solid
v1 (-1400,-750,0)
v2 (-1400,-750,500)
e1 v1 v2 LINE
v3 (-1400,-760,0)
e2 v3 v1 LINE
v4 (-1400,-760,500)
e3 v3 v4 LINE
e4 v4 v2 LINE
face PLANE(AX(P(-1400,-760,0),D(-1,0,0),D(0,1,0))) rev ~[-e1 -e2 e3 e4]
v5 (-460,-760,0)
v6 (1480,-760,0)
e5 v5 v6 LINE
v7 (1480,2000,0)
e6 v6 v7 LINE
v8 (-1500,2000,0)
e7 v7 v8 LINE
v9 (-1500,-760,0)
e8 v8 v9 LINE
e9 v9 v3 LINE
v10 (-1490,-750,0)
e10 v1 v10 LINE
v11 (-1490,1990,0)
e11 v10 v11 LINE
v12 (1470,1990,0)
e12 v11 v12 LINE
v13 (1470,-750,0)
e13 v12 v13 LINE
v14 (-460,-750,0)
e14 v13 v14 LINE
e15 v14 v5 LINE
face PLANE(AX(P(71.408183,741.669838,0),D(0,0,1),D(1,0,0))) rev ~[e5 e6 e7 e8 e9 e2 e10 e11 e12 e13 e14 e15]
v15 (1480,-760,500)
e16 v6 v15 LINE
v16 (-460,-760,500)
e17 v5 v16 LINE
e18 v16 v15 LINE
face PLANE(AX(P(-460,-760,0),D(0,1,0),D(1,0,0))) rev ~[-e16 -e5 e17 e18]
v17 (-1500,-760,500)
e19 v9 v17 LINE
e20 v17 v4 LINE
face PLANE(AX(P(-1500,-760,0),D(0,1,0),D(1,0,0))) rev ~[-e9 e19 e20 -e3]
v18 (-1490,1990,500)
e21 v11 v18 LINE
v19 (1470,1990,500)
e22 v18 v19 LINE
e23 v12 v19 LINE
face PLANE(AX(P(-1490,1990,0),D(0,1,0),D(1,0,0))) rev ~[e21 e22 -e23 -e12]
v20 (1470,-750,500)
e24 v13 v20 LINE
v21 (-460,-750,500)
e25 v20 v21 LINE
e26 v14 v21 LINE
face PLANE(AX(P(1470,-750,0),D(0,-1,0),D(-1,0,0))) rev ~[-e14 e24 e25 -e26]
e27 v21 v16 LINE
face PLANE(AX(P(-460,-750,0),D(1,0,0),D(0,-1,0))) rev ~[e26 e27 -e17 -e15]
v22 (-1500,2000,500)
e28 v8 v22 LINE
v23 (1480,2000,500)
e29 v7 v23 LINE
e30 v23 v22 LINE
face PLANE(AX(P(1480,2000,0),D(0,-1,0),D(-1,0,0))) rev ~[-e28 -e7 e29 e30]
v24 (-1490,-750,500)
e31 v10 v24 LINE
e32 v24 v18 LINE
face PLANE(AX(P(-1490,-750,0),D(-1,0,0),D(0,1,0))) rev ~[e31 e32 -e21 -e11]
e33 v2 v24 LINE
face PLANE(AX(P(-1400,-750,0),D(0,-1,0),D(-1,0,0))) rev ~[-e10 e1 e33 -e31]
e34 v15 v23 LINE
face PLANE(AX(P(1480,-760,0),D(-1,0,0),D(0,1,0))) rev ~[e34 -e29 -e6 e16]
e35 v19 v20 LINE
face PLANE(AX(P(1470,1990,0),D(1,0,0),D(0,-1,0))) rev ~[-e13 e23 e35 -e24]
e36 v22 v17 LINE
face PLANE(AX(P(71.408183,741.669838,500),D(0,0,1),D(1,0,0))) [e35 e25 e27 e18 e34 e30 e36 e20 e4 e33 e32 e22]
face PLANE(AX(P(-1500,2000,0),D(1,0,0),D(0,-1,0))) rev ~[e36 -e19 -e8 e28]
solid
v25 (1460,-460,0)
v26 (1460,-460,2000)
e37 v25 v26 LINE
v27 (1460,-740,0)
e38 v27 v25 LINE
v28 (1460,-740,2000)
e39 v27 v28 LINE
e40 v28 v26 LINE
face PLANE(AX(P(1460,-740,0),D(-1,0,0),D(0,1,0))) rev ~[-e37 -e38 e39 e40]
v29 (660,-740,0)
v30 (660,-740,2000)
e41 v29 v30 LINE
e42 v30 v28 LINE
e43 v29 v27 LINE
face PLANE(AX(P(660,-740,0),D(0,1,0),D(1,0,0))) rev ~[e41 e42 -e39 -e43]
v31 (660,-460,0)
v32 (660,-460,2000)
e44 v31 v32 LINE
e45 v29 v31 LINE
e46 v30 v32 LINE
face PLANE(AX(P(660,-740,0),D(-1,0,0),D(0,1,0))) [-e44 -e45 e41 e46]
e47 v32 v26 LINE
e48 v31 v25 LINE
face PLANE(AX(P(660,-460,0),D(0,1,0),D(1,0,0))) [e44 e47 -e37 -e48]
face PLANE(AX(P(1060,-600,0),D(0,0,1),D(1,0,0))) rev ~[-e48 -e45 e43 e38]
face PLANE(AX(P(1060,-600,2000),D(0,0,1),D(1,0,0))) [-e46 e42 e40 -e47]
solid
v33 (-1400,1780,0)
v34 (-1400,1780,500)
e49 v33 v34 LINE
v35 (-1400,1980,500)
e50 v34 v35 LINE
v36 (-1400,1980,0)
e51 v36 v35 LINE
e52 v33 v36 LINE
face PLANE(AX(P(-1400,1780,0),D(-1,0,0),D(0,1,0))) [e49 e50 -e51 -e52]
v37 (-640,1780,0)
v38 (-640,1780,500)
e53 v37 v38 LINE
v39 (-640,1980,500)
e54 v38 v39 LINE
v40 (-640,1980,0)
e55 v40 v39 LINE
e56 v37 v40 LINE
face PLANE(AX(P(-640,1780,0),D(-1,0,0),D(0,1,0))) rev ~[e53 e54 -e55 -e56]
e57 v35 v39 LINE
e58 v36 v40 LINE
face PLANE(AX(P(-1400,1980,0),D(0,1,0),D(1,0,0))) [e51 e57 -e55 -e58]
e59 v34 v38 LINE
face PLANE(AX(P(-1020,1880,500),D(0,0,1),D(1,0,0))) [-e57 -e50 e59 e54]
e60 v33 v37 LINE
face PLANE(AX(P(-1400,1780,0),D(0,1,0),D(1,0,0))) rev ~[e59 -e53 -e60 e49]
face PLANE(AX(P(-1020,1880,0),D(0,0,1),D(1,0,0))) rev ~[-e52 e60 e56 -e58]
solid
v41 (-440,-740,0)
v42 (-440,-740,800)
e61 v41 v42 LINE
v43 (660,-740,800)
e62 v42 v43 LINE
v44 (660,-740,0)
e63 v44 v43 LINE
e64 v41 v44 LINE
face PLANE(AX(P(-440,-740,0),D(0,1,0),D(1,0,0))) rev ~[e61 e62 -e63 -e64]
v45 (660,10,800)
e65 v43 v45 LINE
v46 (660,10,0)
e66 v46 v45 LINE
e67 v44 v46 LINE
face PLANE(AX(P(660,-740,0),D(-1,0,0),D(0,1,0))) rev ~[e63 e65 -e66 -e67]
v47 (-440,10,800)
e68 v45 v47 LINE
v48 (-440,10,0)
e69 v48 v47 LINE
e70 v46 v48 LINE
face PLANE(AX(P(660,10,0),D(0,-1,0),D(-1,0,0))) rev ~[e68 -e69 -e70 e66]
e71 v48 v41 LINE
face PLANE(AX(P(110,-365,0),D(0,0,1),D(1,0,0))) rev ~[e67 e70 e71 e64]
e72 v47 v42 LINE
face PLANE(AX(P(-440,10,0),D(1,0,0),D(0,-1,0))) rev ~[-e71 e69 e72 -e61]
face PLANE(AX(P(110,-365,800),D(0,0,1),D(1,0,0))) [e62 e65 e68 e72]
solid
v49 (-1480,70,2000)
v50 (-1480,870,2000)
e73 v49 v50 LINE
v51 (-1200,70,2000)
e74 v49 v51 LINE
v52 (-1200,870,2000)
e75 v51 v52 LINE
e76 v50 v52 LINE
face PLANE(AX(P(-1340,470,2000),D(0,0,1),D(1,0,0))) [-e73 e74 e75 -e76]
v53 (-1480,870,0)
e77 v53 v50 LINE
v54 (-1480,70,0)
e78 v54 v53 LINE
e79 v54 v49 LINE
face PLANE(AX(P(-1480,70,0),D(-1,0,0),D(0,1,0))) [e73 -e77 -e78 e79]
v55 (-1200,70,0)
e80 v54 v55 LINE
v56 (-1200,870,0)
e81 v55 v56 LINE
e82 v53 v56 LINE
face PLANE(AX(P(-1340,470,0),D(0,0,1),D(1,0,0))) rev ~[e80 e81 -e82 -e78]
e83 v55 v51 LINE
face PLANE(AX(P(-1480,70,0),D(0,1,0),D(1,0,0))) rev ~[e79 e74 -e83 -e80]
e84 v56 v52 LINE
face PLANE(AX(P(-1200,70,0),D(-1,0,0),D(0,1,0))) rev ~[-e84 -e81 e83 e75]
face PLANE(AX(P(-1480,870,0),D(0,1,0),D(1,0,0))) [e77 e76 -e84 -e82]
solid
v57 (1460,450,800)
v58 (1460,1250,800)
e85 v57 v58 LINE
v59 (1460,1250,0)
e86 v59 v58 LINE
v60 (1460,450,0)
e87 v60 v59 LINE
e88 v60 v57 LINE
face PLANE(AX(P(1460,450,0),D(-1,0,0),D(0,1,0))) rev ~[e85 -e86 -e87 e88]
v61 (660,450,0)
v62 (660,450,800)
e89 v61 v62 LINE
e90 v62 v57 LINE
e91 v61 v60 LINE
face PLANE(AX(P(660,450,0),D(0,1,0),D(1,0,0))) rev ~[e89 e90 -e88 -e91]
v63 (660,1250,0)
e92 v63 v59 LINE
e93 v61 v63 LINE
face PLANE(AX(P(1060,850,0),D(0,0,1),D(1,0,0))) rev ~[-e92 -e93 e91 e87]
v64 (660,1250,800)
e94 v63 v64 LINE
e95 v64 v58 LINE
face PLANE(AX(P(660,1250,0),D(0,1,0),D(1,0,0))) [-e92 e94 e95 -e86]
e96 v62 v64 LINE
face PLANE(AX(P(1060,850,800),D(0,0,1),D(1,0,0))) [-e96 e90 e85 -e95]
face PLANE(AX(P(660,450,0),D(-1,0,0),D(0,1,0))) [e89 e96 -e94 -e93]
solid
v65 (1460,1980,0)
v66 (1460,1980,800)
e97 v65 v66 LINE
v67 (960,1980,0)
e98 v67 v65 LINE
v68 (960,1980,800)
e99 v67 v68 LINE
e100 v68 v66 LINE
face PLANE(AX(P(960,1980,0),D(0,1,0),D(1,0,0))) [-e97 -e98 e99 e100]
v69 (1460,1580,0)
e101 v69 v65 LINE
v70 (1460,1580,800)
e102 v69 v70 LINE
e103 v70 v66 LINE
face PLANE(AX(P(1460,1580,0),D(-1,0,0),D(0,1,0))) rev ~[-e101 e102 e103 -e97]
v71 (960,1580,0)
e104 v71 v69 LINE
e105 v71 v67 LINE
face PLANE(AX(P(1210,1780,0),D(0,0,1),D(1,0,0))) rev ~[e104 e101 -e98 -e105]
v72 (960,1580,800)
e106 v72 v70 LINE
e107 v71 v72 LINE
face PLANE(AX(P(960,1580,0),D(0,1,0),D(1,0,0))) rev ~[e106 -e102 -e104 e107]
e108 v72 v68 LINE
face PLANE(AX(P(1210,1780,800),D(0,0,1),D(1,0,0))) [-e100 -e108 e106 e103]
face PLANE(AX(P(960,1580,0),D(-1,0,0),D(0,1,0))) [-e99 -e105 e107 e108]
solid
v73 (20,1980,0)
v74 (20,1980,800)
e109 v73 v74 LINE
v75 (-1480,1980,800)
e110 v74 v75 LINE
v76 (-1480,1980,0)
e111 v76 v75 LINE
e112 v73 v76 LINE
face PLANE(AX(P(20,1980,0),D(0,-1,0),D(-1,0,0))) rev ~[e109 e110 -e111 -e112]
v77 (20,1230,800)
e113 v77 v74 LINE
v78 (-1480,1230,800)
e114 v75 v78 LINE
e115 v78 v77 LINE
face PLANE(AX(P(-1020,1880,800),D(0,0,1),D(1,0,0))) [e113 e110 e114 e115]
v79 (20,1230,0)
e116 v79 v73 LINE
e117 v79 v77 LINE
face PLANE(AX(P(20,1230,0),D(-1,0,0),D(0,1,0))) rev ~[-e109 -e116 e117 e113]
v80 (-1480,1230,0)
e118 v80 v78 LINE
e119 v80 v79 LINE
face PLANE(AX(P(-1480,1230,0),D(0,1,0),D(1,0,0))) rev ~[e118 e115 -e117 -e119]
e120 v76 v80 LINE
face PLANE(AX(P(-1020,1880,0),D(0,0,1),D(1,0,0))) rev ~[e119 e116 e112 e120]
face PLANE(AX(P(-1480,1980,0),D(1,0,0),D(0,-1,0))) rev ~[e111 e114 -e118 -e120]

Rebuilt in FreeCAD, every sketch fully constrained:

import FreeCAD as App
import Part
import Sketcher
Q = App.Units.Quantity

doc = App.newDocument("Part")
body = doc.addObject("PartDesign::Body", "Body")

sketch1 = doc.addObject("Sketcher::SketchObject", "Sketch")
body.addObject(sketch1)
sketch1.AttachmentSupport = (doc.XY_Plane, [""])
sketch1.MapMode = "FlatFace"
sketch1.addGeometry(Part.LineSegment(App.Vector(-1490, -750, 0), App.Vector(-1490, 1990, 0)), False)
sketch1.addGeometry(Part.LineSegment(App.Vector(-1490, 1990, 0), App.Vector(1470, 1990, 0)), False)
sketch1.addGeometry(Part.LineSegment(App.Vector(1470, 1990, 0), App.Vector(1470, -750, 0)), False)
sketch1.addGeometry(Part.LineSegment(App.Vector(1470, -750, 0), App.Vector(-460, -750, 0)), False)
sketch1.addGeometry(Part.LineSegment(App.Vector(-460, -750, 0), App.Vector(-460, -760, 0)), False)
sketch1.addGeometry(Part.LineSegment(App.Vector(-460, -760, 0), App.Vector(1480, -760, 0)), False)
sketch1.addGeometry(Part.LineSegment(App.Vector(1480, -760, 0), App.Vector(1480, 2000, 0)), False)
sketch1.addGeometry(Part.LineSegment(App.Vector(1480, 2000, 0), App.Vector(-1500, 2000, 0)), False)
sketch1.addGeometry(Part.LineSegment(App.Vector(-1500, 2000, 0), App.Vector(-1500, -760, 0)), False)
sketch1.addGeometry(Part.LineSegment(App.Vector(-1500, -760, 0), App.Vector(-1400, -760, 0)), False)
sketch1.addGeometry(Part.LineSegment(App.Vector(-1400, -760, 0), App.Vector(-1400, -750, 0)), False)
sketch1.addGeometry(Part.LineSegment(App.Vector(-1400, -750, 0), App.Vector(-1490, -750, 0)), False)
sketch1.addConstraint(Sketcher.Constraint("Coincident", 0, 2, 1, 1))
sketch1.addConstraint(Sketcher.Constraint("Coincident", 1, 2, 2, 1))
sketch1.addConstraint(Sketcher.Constraint("Coincident", 2, 2, 3, 1))
sketch1.addConstraint(Sketcher.Constraint("Coincident", 3, 2, 4, 1))
sketch1.addConstraint(Sketcher.Constraint("Coincident", 4, 2, 5, 1))
sketch1.addConstraint(Sketcher.Constraint("Coincident", 5, 2, 6, 1))
sketch1.addConstraint(Sketcher.Constraint("Coincident", 6, 2, 7, 1))
sketch1.addConstraint(Sketcher.Constraint("Coincident", 7, 2, 8, 1))
sketch1.addConstraint(Sketcher.Constraint("Coincident", 8, 2, 9, 1))
sketch1.addConstraint(Sketcher.Constraint("Coincident", 9, 2, 10, 1))
sketch1.addConstraint(Sketcher.Constraint("Coincident", 10, 2, 11, 1))
sketch1.addConstraint(Sketcher.Constraint("Coincident", 11, 2, 0, 1))
sketch1.addConstraint(Sketcher.Constraint("Vertical", 0))
sketch1.addConstraint(Sketcher.Constraint("Horizontal", 1))
sketch1.addConstraint(Sketcher.Constraint("Vertical", 2))
sketch1.addConstraint(Sketcher.Constraint("Horizontal", 3))
sketch1.addConstraint(Sketcher.Constraint("Vertical", 4))
sketch1.addConstraint(Sketcher.Constraint("Horizontal", 5))
sketch1.addConstraint(Sketcher.Constraint("Vertical", 6))
sketch1.addConstraint(Sketcher.Constraint("Horizontal", 7))
sketch1.addConstraint(Sketcher.Constraint("Vertical", 8))
sketch1.addConstraint(Sketcher.Constraint("Horizontal", 9))
sketch1.addConstraint(Sketcher.Constraint("Vertical", 10))
sketch1.addConstraint(Sketcher.Constraint("Horizontal", 11))
sketch1.addConstraint(Sketcher.Constraint("Horizontal", 5, 2, 8, 2))
sketch1.addConstraint(Sketcher.Constraint("Horizontal", 3, 2, 10, 2))
sketch1.addConstraint(Sketcher.Constraint("DistanceX", 1, 1, 1, 2, Q("2960 mm")))
sketch1.addConstraint(Sketcher.Constraint("DistanceX", 3, 2, 3, 1, Q("1930 mm")))
sketch1.addConstraint(Sketcher.Constraint("DistanceX", 5, 1, 5, 2, Q("1940 mm")))
sketch1.addConstraint(Sketcher.Constraint("DistanceX", 7, 2, 7, 1, Q("2980 mm")))
sketch1.addConstraint(Sketcher.Constraint("DistanceX", 9, 1, 9, 2, Q("100 mm")))
sketch1.addConstraint(Sketcher.Constraint("DistanceY", 0, 1, 0, 2, Q("2740 mm")))
sketch1.addConstraint(Sketcher.Constraint("DistanceY", 4, 2, 4, 1, Q("10 mm")))
sketch1.addConstraint(Sketcher.Constraint("DistanceY", 6, 1, 6, 2, Q("2760 mm")))
sketch1.addConstraint(Sketcher.Constraint("DistanceX", 0, 2, -1, 1, Q("1490 mm")))
sketch1.addConstraint(Sketcher.Constraint("DistanceY", -1, 1, 0, 2, Q("1990 mm")))
pad1 = doc.addObject("PartDesign::Pad", "Pad")
body.addObject(pad1)
pad1.Profile = sketch1
pad1.Length = 500
body2 = doc.addObject("PartDesign::Body", "Body001")

sketch2 = doc.addObject("Sketcher::SketchObject", "Sketch001")
body2.addObject(sketch2)
sketch2.AttachmentSupport = (doc.getObject("XY_Plane001"), [""])
sketch2.MapMode = "FlatFace"
sketch2.addGeometry(Part.LineSegment(App.Vector(-1480, 870, 0), App.Vector(-1480, 70, 0)), False)
sketch2.addGeometry(Part.LineSegment(App.Vector(-1480, 70, 0), App.Vector(-1200, 70, 0)), False)
sketch2.addGeometry(Part.LineSegment(App.Vector(-1200, 70, 0), App.Vector(-1200, 870, 0)), False)
sketch2.addGeometry(Part.LineSegment(App.Vector(-1200, 870, 0), App.Vector(-1480, 870, 0)), False)
sketch2.addConstraint(Sketcher.Constraint("Coincident", 0, 2, 1, 1))
sketch2.addConstraint(Sketcher.Constraint("Coincident", 1, 2, 2, 1))
sketch2.addConstraint(Sketcher.Constraint("Coincident", 2, 2, 3, 1))
sketch2.addConstraint(Sketcher.Constraint("Coincident", 3, 2, 0, 1))
sketch2.addConstraint(Sketcher.Constraint("Vertical", 0))
sketch2.addConstraint(Sketcher.Constraint("Horizontal", 1))
sketch2.addConstraint(Sketcher.Constraint("Vertical", 2))
sketch2.addConstraint(Sketcher.Constraint("Horizontal", 3))
sketch2.addConstraint(Sketcher.Constraint("DistanceX", 1, 1, 1, 2, Q("280 mm")))
sketch2.addConstraint(Sketcher.Constraint("DistanceY", 0, 2, 0, 1, Q("800 mm")))
sketch2.addConstraint(Sketcher.Constraint("DistanceX", 0, 2, -1, 1, Q("1480 mm")))
sketch2.addConstraint(Sketcher.Constraint("DistanceY", -1, 1, 0, 2, Q("70 mm")))
pad2 = doc.addObject("PartDesign::Pad", "Pad001")
body2.addObject(pad2)
pad2.Profile = sketch2
pad2.Length = 2000
body3 = doc.addObject("PartDesign::Body", "Body002")

sketch3 = doc.addObject("Sketcher::SketchObject", "Sketch002")
body3.addObject(sketch3)
sketch3.AttachmentSupport = (doc.getObject("XY_Plane002"), [""])
sketch3.MapMode = "FlatFace"
sketch3.addGeometry(Part.LineSegment(App.Vector(-1400, 1980, 0), App.Vector(-1400, 1780, 0)), False)
sketch3.addGeometry(Part.LineSegment(App.Vector(-1400, 1780, 0), App.Vector(-640, 1780, 0)), False)
sketch3.addGeometry(Part.LineSegment(App.Vector(-640, 1780, 0), App.Vector(-640, 1980, 0)), False)
sketch3.addGeometry(Part.LineSegment(App.Vector(-640, 1980, 0), App.Vector(-1400, 1980, 0)), False)
sketch3.addConstraint(Sketcher.Constraint("Coincident", 0, 2, 1, 1))
sketch3.addConstraint(Sketcher.Constraint("Coincident", 1, 2, 2, 1))
sketch3.addConstraint(Sketcher.Constraint("Coincident", 2, 2, 3, 1))
sketch3.addConstraint(Sketcher.Constraint("Coincident", 3, 2, 0, 1))
sketch3.addConstraint(Sketcher.Constraint("Vertical", 0))
sketch3.addConstraint(Sketcher.Constraint("Horizontal", 1))
sketch3.addConstraint(Sketcher.Constraint("Vertical", 2))
sketch3.addConstraint(Sketcher.Constraint("Horizontal", 3))
sketch3.addConstraint(Sketcher.Constraint("DistanceX", 1, 1, 1, 2, Q("760 mm")))
sketch3.addConstraint(Sketcher.Constraint("DistanceY", 0, 2, 0, 1, Q("200 mm")))
sketch3.addConstraint(Sketcher.Constraint("DistanceX", 0, 2, -1, 1, Q("1400 mm")))
sketch3.addConstraint(Sketcher.Constraint("DistanceY", -1, 1, 0, 2, Q("1780 mm")))
pad3 = doc.addObject("PartDesign::Pad", "Pad002")
body3.addObject(pad3)
pad3.Profile = sketch3
pad3.Length = 500
body4 = doc.addObject("PartDesign::Body", "Body003")

sketch4 = doc.addObject("Sketcher::SketchObject", "Sketch003")
body4.addObject(sketch4)
sketch4.AttachmentSupport = (doc.getObject("XY_Plane003"), [""])
sketch4.MapMode = "FlatFace"
sketch4.addGeometry(Part.LineSegment(App.Vector(-1480, 1980, 0), App.Vector(-1480, 1230, 0)), False)
sketch4.addGeometry(Part.LineSegment(App.Vector(-1480, 1230, 0), App.Vector(20, 1230, 0)), False)
sketch4.addGeometry(Part.LineSegment(App.Vector(20, 1230, 0), App.Vector(20, 1980, 0)), False)
sketch4.addGeometry(Part.LineSegment(App.Vector(20, 1980, 0), App.Vector(-1480, 1980, 0)), False)
sketch4.addConstraint(Sketcher.Constraint("Coincident", 0, 2, 1, 1))
sketch4.addConstraint(Sketcher.Constraint("Coincident", 1, 2, 2, 1))
sketch4.addConstraint(Sketcher.Constraint("Coincident", 2, 2, 3, 1))
sketch4.addConstraint(Sketcher.Constraint("Coincident", 3, 2, 0, 1))
sketch4.addConstraint(Sketcher.Constraint("Vertical", 0))
sketch4.addConstraint(Sketcher.Constraint("Horizontal", 1))
sketch4.addConstraint(Sketcher.Constraint("Vertical", 2))
sketch4.addConstraint(Sketcher.Constraint("Horizontal", 3))
sketch4.addConstraint(Sketcher.Constraint("DistanceX", 1, 1, 1, 2, Q("1500 mm")))
sketch4.addConstraint(Sketcher.Constraint("DistanceY", 0, 2, 0, 1, Q("750 mm")))
sketch4.addConstraint(Sketcher.Constraint("DistanceX", 0, 2, -1, 1, Q("1480 mm")))
sketch4.addConstraint(Sketcher.Constraint("DistanceY", -1, 1, 0, 2, Q("1230 mm")))
pad4 = doc.addObject("PartDesign::Pad", "Pad003")
body4.addObject(pad4)
pad4.Profile = sketch4
pad4.Length = 800
body5 = doc.addObject("PartDesign::Body", "Body004")

sketch5 = doc.addObject("Sketcher::SketchObject", "Sketch004")
body5.addObject(sketch5)
sketch5.AttachmentSupport = (doc.getObject("XY_Plane004"), [""])
sketch5.MapMode = "FlatFace"
sketch5.addGeometry(Part.LineSegment(App.Vector(660, -740, 0), App.Vector(660, 10, 0)), False)
sketch5.addGeometry(Part.LineSegment(App.Vector(660, 10, 0), App.Vector(-440, 10, 0)), False)
sketch5.addGeometry(Part.LineSegment(App.Vector(-440, 10, 0), App.Vector(-440, -740, 0)), False)
sketch5.addGeometry(Part.LineSegment(App.Vector(-440, -740, 0), App.Vector(660, -740, 0)), False)
sketch5.addConstraint(Sketcher.Constraint("Coincident", 0, 2, 1, 1))
sketch5.addConstraint(Sketcher.Constraint("Coincident", 1, 2, 2, 1))
sketch5.addConstraint(Sketcher.Constraint("Coincident", 2, 2, 3, 1))
sketch5.addConstraint(Sketcher.Constraint("Coincident", 3, 2, 0, 1))
sketch5.addConstraint(Sketcher.Constraint("Vertical", 0))
sketch5.addConstraint(Sketcher.Constraint("Horizontal", 1))
sketch5.addConstraint(Sketcher.Constraint("Vertical", 2))
sketch5.addConstraint(Sketcher.Constraint("Horizontal", 3))
sketch5.addConstraint(Sketcher.Constraint("DistanceX", 1, 2, 1, 1, Q("1100 mm")))
sketch5.addConstraint(Sketcher.Constraint("DistanceY", 0, 1, 0, 2, Q("750 mm")))
sketch5.addConstraint(Sketcher.Constraint("DistanceX", -1, 1, 0, 2, Q("660 mm")))
sketch5.addConstraint(Sketcher.Constraint("DistanceY", -1, 1, 0, 2, Q("10 mm")))
pad5 = doc.addObject("PartDesign::Pad", "Pad004")
body5.addObject(pad5)
pad5.Profile = sketch5
pad5.Length = 800
body6 = doc.addObject("PartDesign::Body", "Body005")

sketch6 = doc.addObject("Sketcher::SketchObject", "Sketch005")
body6.addObject(sketch6)
sketch6.AttachmentSupport = (doc.getObject("XY_Plane005"), [""])
sketch6.MapMode = "FlatFace"
sketch6.addGeometry(Part.LineSegment(App.Vector(660, -460, 0), App.Vector(660, -740, 0)), False)
sketch6.addGeometry(Part.LineSegment(App.Vector(660, -740, 0), App.Vector(1460, -740, 0)), False)
sketch6.addGeometry(Part.LineSegment(App.Vector(1460, -740, 0), App.Vector(1460, -460, 0)), False)
sketch6.addGeometry(Part.LineSegment(App.Vector(1460, -460, 0), App.Vector(660, -460, 0)), False)
sketch6.addConstraint(Sketcher.Constraint("Coincident", 0, 2, 1, 1))
sketch6.addConstraint(Sketcher.Constraint("Coincident", 1, 2, 2, 1))
sketch6.addConstraint(Sketcher.Constraint("Coincident", 2, 2, 3, 1))
sketch6.addConstraint(Sketcher.Constraint("Coincident", 3, 2, 0, 1))
sketch6.addConstraint(Sketcher.Constraint("Vertical", 0))
sketch6.addConstraint(Sketcher.Constraint("Horizontal", 1))
sketch6.addConstraint(Sketcher.Constraint("Vertical", 2))
sketch6.addConstraint(Sketcher.Constraint("Horizontal", 3))
sketch6.addConstraint(Sketcher.Constraint("DistanceX", 1, 1, 1, 2, Q("800 mm")))
sketch6.addConstraint(Sketcher.Constraint("DistanceY", 0, 2, 0, 1, Q("280 mm")))
sketch6.addConstraint(Sketcher.Constraint("DistanceX", -1, 1, 0, 2, Q("660 mm")))
sketch6.addConstraint(Sketcher.Constraint("DistanceY", 0, 2, -1, 1, Q("740 mm")))
pad6 = doc.addObject("PartDesign::Pad", "Pad005")
body6.addObject(pad6)
pad6.Profile = sketch6
pad6.Length = 2000
body7 = doc.addObject("PartDesign::Body", "Body006")

sketch7 = doc.addObject("Sketcher::SketchObject", "Sketch006")
body7.addObject(sketch7)
sketch7.AttachmentSupport = (doc.getObject("XY_Plane006"), [""])
sketch7.MapMode = "FlatFace"
sketch7.addGeometry(Part.LineSegment(App.Vector(660, 1250, 0), App.Vector(660, 450, 0)), False)
sketch7.addGeometry(Part.LineSegment(App.Vector(660, 450, 0), App.Vector(1460, 450, 0)), False)
sketch7.addGeometry(Part.LineSegment(App.Vector(1460, 450, 0), App.Vector(1460, 1250, 0)), False)
sketch7.addGeometry(Part.LineSegment(App.Vector(1460, 1250, 0), App.Vector(660, 1250, 0)), False)
sketch7.addConstraint(Sketcher.Constraint("Coincident", 0, 2, 1, 1))
sketch7.addConstraint(Sketcher.Constraint("Coincident", 1, 2, 2, 1))
sketch7.addConstraint(Sketcher.Constraint("Coincident", 2, 2, 3, 1))
sketch7.addConstraint(Sketcher.Constraint("Coincident", 3, 2, 0, 1))
sketch7.addConstraint(Sketcher.Constraint("Vertical", 0))
sketch7.addConstraint(Sketcher.Constraint("Horizontal", 1))
sketch7.addConstraint(Sketcher.Constraint("Vertical", 2))
sketch7.addConstraint(Sketcher.Constraint("Horizontal", 3))
sketch7.addConstraint(Sketcher.Constraint("Equal", 3, 0))
sketch7.addConstraint(Sketcher.Constraint("DistanceX", 1, 1, 1, 2, Q("800 mm")))
sketch7.addConstraint(Sketcher.Constraint("DistanceX", -1, 1, 0, 2, Q("660 mm")))
sketch7.addConstraint(Sketcher.Constraint("DistanceY", -1, 1, 0, 2, Q("450 mm")))
pad7 = doc.addObject("PartDesign::Pad", "Pad006")
body7.addObject(pad7)
pad7.Profile = sketch7
pad7.Length = 800
body8 = doc.addObject("PartDesign::Body", "Body007")

sketch8 = doc.addObject("Sketcher::SketchObject", "Sketch007")
body8.addObject(sketch8)
sketch8.AttachmentSupport = (doc.getObject("XY_Plane007"), [""])
sketch8.MapMode = "FlatFace"
sketch8.addGeometry(Part.LineSegment(App.Vector(960, 1980, 0), App.Vector(960, 1580, 0)), False)
sketch8.addGeometry(Part.LineSegment(App.Vector(960, 1580, 0), App.Vector(1460, 1580, 0)), False)
sketch8.addGeometry(Part.LineSegment(App.Vector(1460, 1580, 0), App.Vector(1460, 1980, 0)), False)
sketch8.addGeometry(Part.LineSegment(App.Vector(1460, 1980, 0), App.Vector(960, 1980, 0)), False)
sketch8.addConstraint(Sketcher.Constraint("Coincident", 0, 2, 1, 1))
sketch8.addConstraint(Sketcher.Constraint("Coincident", 1, 2, 2, 1))
sketch8.addConstraint(Sketcher.Constraint("Coincident", 2, 2, 3, 1))
sketch8.addConstraint(Sketcher.Constraint("Coincident", 3, 2, 0, 1))
sketch8.addConstraint(Sketcher.Constraint("Vertical", 0))
sketch8.addConstraint(Sketcher.Constraint("Horizontal", 1))
sketch8.addConstraint(Sketcher.Constraint("Vertical", 2))
sketch8.addConstraint(Sketcher.Constraint("Horizontal", 3))
sketch8.addConstraint(Sketcher.Constraint("DistanceX", 1, 1, 1, 2, Q("500 mm")))
sketch8.addConstraint(Sketcher.Constraint("DistanceY", 0, 2, 0, 1, Q("400 mm")))
sketch8.addConstraint(Sketcher.Constraint("DistanceX", -1, 1, 0, 2, Q("960 mm")))
sketch8.addConstraint(Sketcher.Constraint("DistanceY", -1, 1, 0, 2, Q("1580 mm")))
pad8 = doc.addObject("PartDesign::Pad", "Pad007")
body8.addObject(pad8)
pad8.Profile = sketch8
pad8.Length = 800

doc.recompute()
